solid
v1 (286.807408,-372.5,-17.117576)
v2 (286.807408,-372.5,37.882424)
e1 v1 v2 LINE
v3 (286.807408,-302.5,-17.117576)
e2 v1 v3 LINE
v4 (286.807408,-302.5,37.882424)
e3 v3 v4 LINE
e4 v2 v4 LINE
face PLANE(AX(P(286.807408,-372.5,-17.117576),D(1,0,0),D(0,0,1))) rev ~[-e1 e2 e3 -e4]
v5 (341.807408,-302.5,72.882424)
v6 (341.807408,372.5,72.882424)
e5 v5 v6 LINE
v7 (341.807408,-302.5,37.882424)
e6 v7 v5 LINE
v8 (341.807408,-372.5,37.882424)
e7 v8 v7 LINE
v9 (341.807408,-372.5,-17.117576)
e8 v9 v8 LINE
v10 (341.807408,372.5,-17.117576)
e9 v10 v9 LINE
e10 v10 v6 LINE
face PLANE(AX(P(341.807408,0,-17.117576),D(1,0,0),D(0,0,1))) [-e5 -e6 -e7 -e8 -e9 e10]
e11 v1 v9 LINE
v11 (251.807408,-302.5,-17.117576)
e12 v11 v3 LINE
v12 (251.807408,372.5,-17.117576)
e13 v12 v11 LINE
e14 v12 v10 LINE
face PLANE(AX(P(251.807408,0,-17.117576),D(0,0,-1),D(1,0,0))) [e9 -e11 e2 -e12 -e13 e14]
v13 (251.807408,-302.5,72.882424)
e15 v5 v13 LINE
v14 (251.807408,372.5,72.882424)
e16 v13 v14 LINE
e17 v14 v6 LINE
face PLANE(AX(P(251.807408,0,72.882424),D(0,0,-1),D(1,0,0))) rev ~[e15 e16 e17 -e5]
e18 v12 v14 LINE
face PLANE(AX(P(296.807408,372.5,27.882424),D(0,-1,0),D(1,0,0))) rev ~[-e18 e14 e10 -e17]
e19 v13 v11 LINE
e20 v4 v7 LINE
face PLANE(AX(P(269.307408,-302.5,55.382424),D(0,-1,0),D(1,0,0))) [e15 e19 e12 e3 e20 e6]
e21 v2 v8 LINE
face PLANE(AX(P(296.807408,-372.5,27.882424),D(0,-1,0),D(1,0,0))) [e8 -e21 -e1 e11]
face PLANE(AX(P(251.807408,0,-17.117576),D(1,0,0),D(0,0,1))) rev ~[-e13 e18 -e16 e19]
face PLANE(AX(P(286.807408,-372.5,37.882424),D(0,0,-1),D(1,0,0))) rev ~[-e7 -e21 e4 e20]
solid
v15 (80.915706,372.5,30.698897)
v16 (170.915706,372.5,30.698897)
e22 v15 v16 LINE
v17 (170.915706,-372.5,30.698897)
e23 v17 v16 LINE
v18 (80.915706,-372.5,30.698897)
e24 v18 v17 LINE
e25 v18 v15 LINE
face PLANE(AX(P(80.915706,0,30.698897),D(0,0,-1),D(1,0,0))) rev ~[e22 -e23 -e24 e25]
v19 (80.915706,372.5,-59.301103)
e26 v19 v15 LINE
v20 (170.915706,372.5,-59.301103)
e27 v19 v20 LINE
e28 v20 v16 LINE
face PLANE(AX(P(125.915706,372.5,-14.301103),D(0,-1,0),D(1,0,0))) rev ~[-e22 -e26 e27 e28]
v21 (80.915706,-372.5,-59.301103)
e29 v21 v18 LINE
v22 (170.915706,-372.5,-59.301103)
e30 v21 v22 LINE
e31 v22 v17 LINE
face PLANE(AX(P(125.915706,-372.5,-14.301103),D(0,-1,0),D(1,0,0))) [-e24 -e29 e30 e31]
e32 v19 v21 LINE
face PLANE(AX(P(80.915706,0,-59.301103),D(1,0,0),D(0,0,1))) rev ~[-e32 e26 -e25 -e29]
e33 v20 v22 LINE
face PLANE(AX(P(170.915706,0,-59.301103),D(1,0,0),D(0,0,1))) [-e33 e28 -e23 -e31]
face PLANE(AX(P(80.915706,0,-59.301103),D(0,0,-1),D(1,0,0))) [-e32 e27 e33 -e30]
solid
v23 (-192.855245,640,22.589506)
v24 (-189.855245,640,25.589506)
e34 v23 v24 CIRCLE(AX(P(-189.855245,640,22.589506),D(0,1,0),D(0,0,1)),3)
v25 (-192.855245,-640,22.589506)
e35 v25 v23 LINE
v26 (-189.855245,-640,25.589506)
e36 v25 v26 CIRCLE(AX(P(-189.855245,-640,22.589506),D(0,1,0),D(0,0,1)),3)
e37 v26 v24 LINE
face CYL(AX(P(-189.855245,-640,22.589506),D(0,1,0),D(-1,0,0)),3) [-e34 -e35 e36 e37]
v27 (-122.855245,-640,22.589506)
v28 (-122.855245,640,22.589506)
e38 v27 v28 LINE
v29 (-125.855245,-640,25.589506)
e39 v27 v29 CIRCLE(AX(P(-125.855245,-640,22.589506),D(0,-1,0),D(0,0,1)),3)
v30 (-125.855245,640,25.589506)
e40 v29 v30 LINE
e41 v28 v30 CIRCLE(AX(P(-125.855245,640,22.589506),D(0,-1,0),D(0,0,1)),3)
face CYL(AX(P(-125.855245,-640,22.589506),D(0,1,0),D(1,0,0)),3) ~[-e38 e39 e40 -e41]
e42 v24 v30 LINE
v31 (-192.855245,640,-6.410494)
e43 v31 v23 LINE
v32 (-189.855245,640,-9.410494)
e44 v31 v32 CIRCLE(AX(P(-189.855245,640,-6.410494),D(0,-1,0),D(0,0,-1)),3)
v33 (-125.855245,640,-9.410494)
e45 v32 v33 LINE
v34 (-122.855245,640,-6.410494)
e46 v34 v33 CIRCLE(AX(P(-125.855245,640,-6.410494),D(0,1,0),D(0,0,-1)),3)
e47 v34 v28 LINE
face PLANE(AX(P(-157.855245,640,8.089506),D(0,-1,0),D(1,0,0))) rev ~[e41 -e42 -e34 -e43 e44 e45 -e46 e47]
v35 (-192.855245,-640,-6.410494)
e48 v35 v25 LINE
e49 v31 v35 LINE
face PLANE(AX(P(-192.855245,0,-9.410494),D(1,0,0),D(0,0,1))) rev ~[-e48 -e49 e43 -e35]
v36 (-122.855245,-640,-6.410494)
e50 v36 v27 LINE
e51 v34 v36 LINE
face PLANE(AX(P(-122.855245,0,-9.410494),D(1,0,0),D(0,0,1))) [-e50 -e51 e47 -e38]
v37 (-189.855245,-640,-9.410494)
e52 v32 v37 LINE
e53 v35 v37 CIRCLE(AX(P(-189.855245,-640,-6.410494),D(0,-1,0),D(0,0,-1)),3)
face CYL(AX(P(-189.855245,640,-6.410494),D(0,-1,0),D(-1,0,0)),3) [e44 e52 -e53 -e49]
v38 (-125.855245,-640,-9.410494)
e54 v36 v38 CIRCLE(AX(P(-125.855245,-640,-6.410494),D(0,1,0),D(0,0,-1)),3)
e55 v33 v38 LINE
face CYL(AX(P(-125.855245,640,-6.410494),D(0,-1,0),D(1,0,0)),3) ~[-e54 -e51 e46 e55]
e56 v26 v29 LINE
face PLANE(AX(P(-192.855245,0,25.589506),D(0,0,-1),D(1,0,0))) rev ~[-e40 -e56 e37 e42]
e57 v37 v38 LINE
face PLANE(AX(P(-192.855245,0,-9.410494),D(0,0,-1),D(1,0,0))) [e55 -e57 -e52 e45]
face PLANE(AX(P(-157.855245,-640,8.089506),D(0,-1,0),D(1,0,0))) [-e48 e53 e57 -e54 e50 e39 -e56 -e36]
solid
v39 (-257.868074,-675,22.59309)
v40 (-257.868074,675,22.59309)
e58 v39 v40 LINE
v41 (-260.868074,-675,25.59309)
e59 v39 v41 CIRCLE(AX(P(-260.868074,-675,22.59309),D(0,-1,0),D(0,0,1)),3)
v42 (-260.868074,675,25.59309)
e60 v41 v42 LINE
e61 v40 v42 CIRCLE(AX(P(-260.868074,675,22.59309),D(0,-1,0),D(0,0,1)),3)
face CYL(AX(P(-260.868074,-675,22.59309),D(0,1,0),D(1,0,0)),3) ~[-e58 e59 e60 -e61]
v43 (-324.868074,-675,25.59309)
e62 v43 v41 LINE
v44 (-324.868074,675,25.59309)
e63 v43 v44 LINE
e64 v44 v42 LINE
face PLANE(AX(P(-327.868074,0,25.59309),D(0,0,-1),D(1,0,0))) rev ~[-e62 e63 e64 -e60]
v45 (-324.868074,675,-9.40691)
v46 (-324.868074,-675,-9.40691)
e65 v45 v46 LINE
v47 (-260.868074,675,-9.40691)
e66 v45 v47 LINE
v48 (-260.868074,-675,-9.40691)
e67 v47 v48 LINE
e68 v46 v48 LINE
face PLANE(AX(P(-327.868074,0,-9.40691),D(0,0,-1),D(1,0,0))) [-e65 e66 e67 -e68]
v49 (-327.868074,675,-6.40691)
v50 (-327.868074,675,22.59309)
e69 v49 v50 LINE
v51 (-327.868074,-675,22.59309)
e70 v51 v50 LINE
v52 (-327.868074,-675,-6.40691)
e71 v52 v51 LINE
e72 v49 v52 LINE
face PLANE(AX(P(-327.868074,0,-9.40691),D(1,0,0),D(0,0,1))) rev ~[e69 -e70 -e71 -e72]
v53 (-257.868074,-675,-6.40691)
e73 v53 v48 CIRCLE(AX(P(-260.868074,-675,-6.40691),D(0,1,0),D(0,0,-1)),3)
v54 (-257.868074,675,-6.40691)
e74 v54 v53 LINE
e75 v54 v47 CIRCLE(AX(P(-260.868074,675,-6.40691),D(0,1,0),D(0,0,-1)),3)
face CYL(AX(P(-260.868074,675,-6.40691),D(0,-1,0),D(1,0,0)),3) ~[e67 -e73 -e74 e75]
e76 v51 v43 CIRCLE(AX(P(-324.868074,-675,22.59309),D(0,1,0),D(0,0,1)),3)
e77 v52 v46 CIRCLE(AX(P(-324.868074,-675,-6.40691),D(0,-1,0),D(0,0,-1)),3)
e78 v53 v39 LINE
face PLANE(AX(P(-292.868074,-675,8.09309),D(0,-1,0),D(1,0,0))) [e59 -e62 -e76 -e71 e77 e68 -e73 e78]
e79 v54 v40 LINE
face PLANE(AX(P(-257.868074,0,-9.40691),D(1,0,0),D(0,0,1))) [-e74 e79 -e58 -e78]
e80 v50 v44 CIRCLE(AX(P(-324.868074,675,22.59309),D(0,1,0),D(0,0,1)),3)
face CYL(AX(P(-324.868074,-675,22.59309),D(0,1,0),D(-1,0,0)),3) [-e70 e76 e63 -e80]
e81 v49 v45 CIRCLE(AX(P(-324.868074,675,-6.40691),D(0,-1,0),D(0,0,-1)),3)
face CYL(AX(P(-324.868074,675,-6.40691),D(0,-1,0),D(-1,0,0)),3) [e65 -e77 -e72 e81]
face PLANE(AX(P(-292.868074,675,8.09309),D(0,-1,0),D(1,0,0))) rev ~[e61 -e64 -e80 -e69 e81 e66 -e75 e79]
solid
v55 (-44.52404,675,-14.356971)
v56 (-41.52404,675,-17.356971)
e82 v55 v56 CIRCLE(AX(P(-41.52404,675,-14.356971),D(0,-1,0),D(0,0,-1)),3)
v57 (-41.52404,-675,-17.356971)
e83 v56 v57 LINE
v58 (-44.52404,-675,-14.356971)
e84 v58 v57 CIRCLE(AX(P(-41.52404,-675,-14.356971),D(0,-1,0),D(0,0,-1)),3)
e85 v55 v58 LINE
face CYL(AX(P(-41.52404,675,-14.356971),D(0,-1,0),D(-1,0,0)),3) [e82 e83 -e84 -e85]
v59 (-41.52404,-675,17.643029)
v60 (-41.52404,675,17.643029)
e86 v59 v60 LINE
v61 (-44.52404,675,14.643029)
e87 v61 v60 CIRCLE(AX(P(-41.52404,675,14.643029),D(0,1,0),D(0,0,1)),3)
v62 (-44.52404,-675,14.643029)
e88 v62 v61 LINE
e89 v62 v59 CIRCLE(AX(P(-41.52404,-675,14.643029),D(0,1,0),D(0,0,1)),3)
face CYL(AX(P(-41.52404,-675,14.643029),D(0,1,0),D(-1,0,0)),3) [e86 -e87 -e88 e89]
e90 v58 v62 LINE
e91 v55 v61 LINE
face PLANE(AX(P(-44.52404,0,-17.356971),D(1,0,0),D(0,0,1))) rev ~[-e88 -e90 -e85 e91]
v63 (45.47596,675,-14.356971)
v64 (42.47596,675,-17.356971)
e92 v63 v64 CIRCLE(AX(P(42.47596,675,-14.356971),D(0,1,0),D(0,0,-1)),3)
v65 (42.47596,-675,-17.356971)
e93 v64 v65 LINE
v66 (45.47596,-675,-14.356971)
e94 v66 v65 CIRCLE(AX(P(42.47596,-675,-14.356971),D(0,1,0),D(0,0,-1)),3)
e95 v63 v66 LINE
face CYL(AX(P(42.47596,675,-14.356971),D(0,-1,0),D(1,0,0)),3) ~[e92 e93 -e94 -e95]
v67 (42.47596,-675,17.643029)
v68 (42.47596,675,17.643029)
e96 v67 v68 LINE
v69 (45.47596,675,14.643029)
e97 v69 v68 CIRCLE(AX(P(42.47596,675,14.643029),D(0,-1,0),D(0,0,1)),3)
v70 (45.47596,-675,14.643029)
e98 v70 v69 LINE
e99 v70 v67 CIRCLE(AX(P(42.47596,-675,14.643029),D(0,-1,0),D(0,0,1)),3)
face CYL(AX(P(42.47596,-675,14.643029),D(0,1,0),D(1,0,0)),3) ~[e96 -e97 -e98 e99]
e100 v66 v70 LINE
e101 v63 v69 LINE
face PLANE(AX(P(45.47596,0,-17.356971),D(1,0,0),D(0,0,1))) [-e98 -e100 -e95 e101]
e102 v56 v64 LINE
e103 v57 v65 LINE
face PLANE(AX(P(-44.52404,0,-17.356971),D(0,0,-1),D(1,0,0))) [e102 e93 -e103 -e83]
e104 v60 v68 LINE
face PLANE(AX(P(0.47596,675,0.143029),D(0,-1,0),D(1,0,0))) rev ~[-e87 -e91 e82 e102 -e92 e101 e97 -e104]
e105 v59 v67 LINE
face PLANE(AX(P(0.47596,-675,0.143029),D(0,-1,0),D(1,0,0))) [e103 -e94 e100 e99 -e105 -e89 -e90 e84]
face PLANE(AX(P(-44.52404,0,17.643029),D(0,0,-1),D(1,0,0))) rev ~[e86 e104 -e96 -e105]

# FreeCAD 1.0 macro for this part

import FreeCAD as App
import Part
import Sketcher
Q = App.Units.Quantity


def edges_at(feature, points):
    """Names of the edges that pass closest to the given points."""
    edges = feature.Shape.Edges
    near = lambda p: min(range(len(edges)), key=lambda i: edges[i].distToShape(Part.Vertex(*p))[0])
    return sorted({f"Edge{near(p) + 1}" for p in points})

doc = App.newDocument("Part")
body = doc.addObject("PartDesign::Body", "Body")

sketch1 = doc.addObject("Sketcher::SketchObject", "Sketch")
body.addObject(sketch1)
sketch1.AttachmentSupport = (doc.XZ_Plane, [""])
sketch1.MapMode = "FlatFace"
sketch1.addGeometry(Part.LineSegment(App.Vector(-45, 18, 0), App.Vector(-45, -17, 0)), False)
sketch1.addGeometry(Part.LineSegment(App.Vector(-45, -17, 0), App.Vector(45, -17, 0)), False)
sketch1.addGeometry(Part.LineSegment(App.Vector(45, -17, 0), App.Vector(45, 18, 0)), False)
sketch1.addGeometry(Part.LineSegment(App.Vector(45, 18, 0), App.Vector(-45, 18, 0)), False)
sketch1.addConstraint(Sketcher.Constraint("Coincident", 0, 2, 1, 1))
sketch1.addConstraint(Sketcher.Constraint("Coincident", 1, 2, 2, 1))
sketch1.addConstraint(Sketcher.Constraint("Coincident", 2, 2, 3, 1))
sketch1.addConstraint(Sketcher.Constraint("Coincident", 3, 2, 0, 1))
sketch1.addConstraint(Sketcher.Constraint("Vertical", 0))
sketch1.addConstraint(Sketcher.Constraint("Horizontal", 1))
sketch1.addConstraint(Sketcher.Constraint("Vertical", 2))
sketch1.addConstraint(Sketcher.Constraint("Horizontal", 3))
sketch1.addConstraint(Sketcher.Constraint("DistanceX", 1, 1, 1, 2, Q("90 mm")))
sketch1.addConstraint(Sketcher.Constraint("DistanceY", 0, 2, 0, 1, Q("35 mm")))
sketch1.addConstraint(Sketcher.Constraint("DistanceX", 0, 2, -1, 1, Q("44.52404 mm")))
sketch1.addConstraint(Sketcher.Constraint("DistanceY", 0, 2, -1, 1, Q("17.356971 mm")))
pad1 = doc.addObject("PartDesign::Pad", "Pad")
body.addObject(pad1)
pad1.Profile = sketch1
pad1.Length = 1350
pad1.Midplane = True
doc.recompute()

fillet = doc.addObject("PartDesign::Fillet", "Fillet")
body.addObject(fillet)
fillet.Base = (pad1, edges_at(pad1, [
    (45.476, 0, 17.643),
    (45.476, 0, -17.357),
    (-44.524, 0, 17.643),
    (-44.524, 0, -17.357),
]))
fillet.Radius = 3
body2 = doc.addObject("PartDesign::Body", "Body001")

sketch2 = doc.addObject("Sketcher::SketchObject", "Sketch001")
body2.addObject(sketch2)
sketch2.AttachmentSupport = (doc.getObject("XZ_Plane001"), [""])
sketch2.MapMode = "FlatFace"
sketch2.addGeometry(Part.LineSegment(App.Vector(81, 31, 0), App.Vector(81, -59, 0)), False)
sketch2.addGeometry(Part.LineSegment(App.Vector(81, -59, 0), App.Vector(171, -59, 0)), False)
sketch2.addGeometry(Part.LineSegment(App.Vector(171, -59, 0), App.Vector(171, 31, 0)), False)
sketch2.addGeometry(Part.LineSegment(App.Vector(171, 31, 0), App.Vector(81, 31, 0)), False)
sketch2.addConstraint(Sketcher.Constraint("Coincident", 0, 2, 1, 1))
sketch2.addConstraint(Sketcher.Constraint("Coincident", 1, 2, 2, 1))
sketch2.addConstraint(Sketcher.Constraint("Coincident", 2, 2, 3, 1))
sketch2.addConstraint(Sketcher.Constraint("Coincident", 3, 2, 0, 1))
sketch2.addConstraint(Sketcher.Constraint("Vertical", 0))
sketch2.addConstraint(Sketcher.Constraint("Horizontal", 1))
sketch2.addConstraint(Sketcher.Constraint("Vertical", 2))
sketch2.addConstraint(Sketcher.Constraint("Horizontal", 3))
sketch2.addConstraint(Sketcher.Constraint("Equal", 3, 0))
sketch2.addConstraint(Sketcher.Constraint("DistanceX", 1, 1, 1, 2, Q("90 mm")))
sketch2.addConstraint(Sketcher.Constraint("DistanceX", -1, 1, 0, 2, Q("80.915706 mm")))
sketch2.addConstraint(Sketcher.Constraint("DistanceY", 0, 2, -1, 1, Q("59.301103 mm")))
pad2 = doc.addObject("PartDesign::Pad", "Pad001")
body2.addObject(pad2)
pad2.Profile = sketch2
pad2.Length = 745
pad2.Midplane = True
body3 = doc.addObject("PartDesign::Body", "Body002")

sketch3 = doc.addObject("Sketcher::SketchObject", "Sketch002")
body3.addObject(sketch3)
sketch3.AttachmentSupport = (doc.getObject("XZ_Plane002"), [""])
sketch3.MapMode = "FlatFace"
sketch3.addGeometry(Part.LineSegment(App.Vector(-193, 26, 0), App.Vector(-193, -9, 0)), False)
sketch3.addGeometry(Part.LineSegment(App.Vector(-193, -9, 0), App.Vector(-123, -9, 0)), False)
sketch3.addGeometry(Part.LineSegment(App.Vector(-123, -9, 0), App.Vector(-123, 26, 0)), False)
sketch3.addGeometry(Part.LineSegment(App.Vector(-123, 26, 0), App.Vector(-193, 26, 0)), False)
sketch3.addConstraint(Sketcher.Constraint("Coincident", 0, 2, 1, 1))
sketch3.addConstraint(Sketcher.Constraint("Coincident", 1, 2, 2, 1))
sketch3.addConstraint(Sketcher.Constraint("Coincident", 2, 2, 3, 1))
sketch3.addConstraint(Sketcher.Constraint("Coincident", 3, 2, 0, 1))
sketch3.addConstraint(Sketcher.Constraint("Vertical", 0))
sketch3.addConstraint(Sketcher.Constraint("Horizontal", 1))
sketch3.addConstraint(Sketcher.Constraint("Vertical", 2))
sketch3.addConstraint(Sketcher.Constraint("Horizontal", 3))
sketch3.addConstraint(Sketcher.Constraint("DistanceX", 1, 1, 1, 2, Q("70 mm")))
sketch3.addConstraint(Sketcher.Constraint("DistanceY", 0, 2, 0, 1, Q("35 mm")))
sketch3.addConstraint(Sketcher.Constraint("DistanceX", 0, 2, -1, 1, Q("192.855245 mm")))
sketch3.addConstraint(Sketcher.Constraint("DistanceY", 0, 2, -1, 1, Q("9.410494 mm")))
pad3 = doc.addObject("PartDesign::Pad", "Pad002")
body3.addObject(pad3)
pad3.Profile = sketch3
pad3.Length = 1280
pad3.Midplane = True
doc.recompute()

fillet2 = doc.addObject("PartDesign::Fillet", "Fillet001")
body3.addObject(fillet2)
fillet2.Base = (pad3, edges_at(pad3, [
    (-122.855, 0, 25.59),
    (-122.855, 0, -9.41),
    (-192.855, 0, 25.59),
    (-192.855, 0, -9.41),
]))
fillet2.Radius = 3
body4 = doc.addObject("PartDesign::Body", "Body003")

sketch4 = doc.addObject("Sketcher::SketchObject", "Sketch003")
body4.addObject(sketch4)
sketch4.AttachmentSupport = (doc.getObject("XZ_Plane003"), [""])
sketch4.MapMode = "FlatFace"
sketch4.addGeometry(Part.LineSegment(App.Vector(-328, 26, 0), App.Vector(-328, -9, 0)), False)
sketch4.addGeometry(Part.LineSegment(App.Vector(-328, -9, 0), App.Vector(-258, -9, 0)), False)
sketch4.addGeometry(Part.LineSegment(App.Vector(-258, -9, 0), App.Vector(-258, 26, 0)), False)
sketch4.addGeometry(Part.LineSegment(App.Vector(-258, 26, 0), App.Vector(-328, 26, 0)), False)
sketch4.addConstraint(Sketcher.Constraint("Coincident", 0, 2, 1, 1))
sketch4.addConstraint(Sketcher.Constraint("Coincident", 1, 2, 2, 1))
sketch4.addConstraint(Sketcher.Constraint("Coincident", 2, 2, 3, 1))
sketch4.addConstraint(Sketcher.Constraint("Coincident", 3, 2, 0, 1))
sketch4.addConstraint(Sketcher.Constraint("Vertical", 0))
sketch4.addConstraint(Sketcher.Constraint("Horizontal", 1))
sketch4.addConstraint(Sketcher.Constraint("Vertical", 2))
sketch4.addConstraint(Sketcher.Constraint("Horizontal", 3))
sketch4.addConstraint(Sketcher.Constraint("DistanceX", 1, 1, 1, 2, Q("70 mm")))
sketch4.addConstraint(Sketcher.Constraint("DistanceY", 0, 2, 0, 1, Q("35 mm")))
sketch4.addConstraint(Sketcher.Constraint("DistanceY", 0, 2, -1, 1, Q("9.40691 mm")))
sketch4.addConstraint(Sketcher.Constraint("DistanceX", 0, 2, -1, 1, Q("327.868074 mm")))
pad4 = doc.addObject("PartDesign::Pad", "Pad003")
body4.addObject(pad4)
pad4.Profile = sketch4
pad4.Length = 1350
pad4.Midplane = True
doc.recompute()

fillet3 = doc.addObject("PartDesign::Fillet", "Fillet002")
body4.addObject(fillet3)
fillet3.Base = (pad4, edges_at(pad4, [
    (-327.868, 0, -9.407),
    (-327.868, 0, 25.593),
    (-257.868, 0, 25.593),
    (-257.868, 0, -9.407),
]))
fillet3.Radius = 3
body5 = doc.addObject("PartDesign::Body", "Body004")

sketch5 = doc.addObject("Sketcher::SketchObject", "Sketch004")
body5.addObject(sketch5)
sketch5.AttachmentSupport = (doc.getObject("XZ_Plane004"), [""])
sketch5.MapMode = "FlatFace"
sketch5.addGeometry(Part.LineSegment(App.Vector(252, 73, 0), App.Vector(252, -17, 0)), False)
sketch5.addGeometry(Part.LineSegment(App.Vector(252, -17, 0), App.Vector(342, -17, 0)), False)
sketch5.addGeometry(Part.LineSegment(App.Vector(342, -17, 0), App.Vector(342, 73, 0)), False)
sketch5.addGeometry(Part.LineSegment(App.Vector(342, 73, 0), App.Vector(252, 73, 0)), False)
sketch5.addConstraint(Sketcher.Constraint("Coincident", 0, 2, 1, 1))
sketch5.addConstraint(Sketcher.Constraint("Coincident", 1, 2, 2, 1))
sketch5.addConstraint(Sketcher.Constraint("Coincident", 2, 2, 3, 1))
sketch5.addConstraint(Sketcher.Constraint("Coincident", 3, 2, 0, 1))
sketch5.addConstraint(Sketcher.Constraint("Vertical", 0))
sketch5.addConstraint(Sketcher.Constraint("Horizontal", 1))
sketch5.addConstraint(Sketcher.Constraint("Vertical", 2))
sketch5.addConstraint(Sketcher.Constraint("Horizontal", 3))
sketch5.addConstraint(Sketcher.Constraint("Equal", 3, 0))
sketch5.addConstraint(Sketcher.Constraint("DistanceX", 1, 1, 1, 2, Q("90 mm")))
sketch5.addConstraint(Sketcher.Constraint("DistanceX", -1, 1, 0, 2, Q("251.807408 mm")))
sketch5.addConstraint(Sketcher.Constraint("DistanceY", 0, 2, -1, 1, Q("17.117576 mm")))
pad5 = doc.addObject("PartDesign::Pad", "Pad004")
body5.addObject(pad5)
pad5.Profile = sketch5
pad5.Length = 745
pad5.Midplane = True

sketch6 = doc.addObject("Sketcher::SketchObject", "Sketch005")
body5.addObject(sketch6)
sketch6.AttachmentSupport = (doc.getObject("XZ_Plane004"), [""])
sketch6.MapMode = "FlatFace"
sketch6.AttachmentOffset = App.Placement(App.Vector(0, 0, 372.5), App.Rotation())
sketch6.addGeometry(Part.LineSegment(App.Vector(252, 73, 0), App.Vector(252, -17, 0)), False)
sketch6.addGeometry(Part.LineSegment(App.Vector(252, -17, 0), App.Vector(287, -17, 0)), False)
sketch6.addGeometry(Part.LineSegment(App.Vector(287, -17, 0), App.Vector(287, 38, 0)), False)
sketch6.addGeometry(Part.LineSegment(App.Vector(287, 38, 0), App.Vector(342, 38, 0)), False)
sketch6.addGeometry(Part.LineSegment(App.Vector(342, 38, 0), App.Vector(342, 73, 0)), False)
sketch6.addGeometry(Part.LineSegment(App.Vector(342, 73, 0), App.Vector(252, 73, 0)), False)
sketch6.addConstraint(Sketcher.Constraint("Coincident", 0, 2, 1, 1))
sketch6.addConstraint(Sketcher.Constraint("Coincident", 1, 2, 2, 1))
sketch6.addConstraint(Sketcher.Constraint("Coincident", 2, 2, 3, 1))
sketch6.addConstraint(Sketcher.Constraint("Coincident", 3, 2, 4, 1))
sketch6.addConstraint(Sketcher.Constraint("Coincident", 4, 2, 5, 1))
sketch6.addConstraint(Sketcher.Constraint("Coincident", 5, 2, 0, 1))
sketch6.addConstraint(Sketcher.Constraint("Vertical", 0))
sketch6.addConstraint(Sketcher.Constraint("Horizontal", 1))
sketch6.addConstraint(Sketcher.Constraint("Vertical", 2))
sketch6.addConstraint(Sketcher.Constraint("Horizontal", 3))
sketch6.addConstraint(Sketcher.Constraint("Vertical", 4))
sketch6.addConstraint(Sketcher.Constraint("Horizontal", 5))
sketch6.addConstraint(Sketcher.Constraint("Equal", 5, 0))
sketch6.addConstraint(Sketcher.Constraint("Equal", 3, 2))
sketch6.addConstraint(Sketcher.Constraint("DistanceX", 1, 1, 1, 2, Q("35 mm")))
sketch6.addConstraint(Sketcher.Constraint("DistanceX", 3, 1, 3, 2, Q("55 mm")))
sketch6.addConstraint(Sketcher.Constraint("DistanceX", -1, 1, 0, 2, Q("251.807408 mm")))
sketch6.addConstraint(Sketcher.Constraint("DistanceY", 0, 2, -1, 1, Q("17.117576 mm")))
pocket1 = doc.addObject("PartDesign::Pocket", "Pocket")
body5.addObject(pocket1)
pocket1.Profile = sketch6
pocket1.Length = 70

doc.recompute()
